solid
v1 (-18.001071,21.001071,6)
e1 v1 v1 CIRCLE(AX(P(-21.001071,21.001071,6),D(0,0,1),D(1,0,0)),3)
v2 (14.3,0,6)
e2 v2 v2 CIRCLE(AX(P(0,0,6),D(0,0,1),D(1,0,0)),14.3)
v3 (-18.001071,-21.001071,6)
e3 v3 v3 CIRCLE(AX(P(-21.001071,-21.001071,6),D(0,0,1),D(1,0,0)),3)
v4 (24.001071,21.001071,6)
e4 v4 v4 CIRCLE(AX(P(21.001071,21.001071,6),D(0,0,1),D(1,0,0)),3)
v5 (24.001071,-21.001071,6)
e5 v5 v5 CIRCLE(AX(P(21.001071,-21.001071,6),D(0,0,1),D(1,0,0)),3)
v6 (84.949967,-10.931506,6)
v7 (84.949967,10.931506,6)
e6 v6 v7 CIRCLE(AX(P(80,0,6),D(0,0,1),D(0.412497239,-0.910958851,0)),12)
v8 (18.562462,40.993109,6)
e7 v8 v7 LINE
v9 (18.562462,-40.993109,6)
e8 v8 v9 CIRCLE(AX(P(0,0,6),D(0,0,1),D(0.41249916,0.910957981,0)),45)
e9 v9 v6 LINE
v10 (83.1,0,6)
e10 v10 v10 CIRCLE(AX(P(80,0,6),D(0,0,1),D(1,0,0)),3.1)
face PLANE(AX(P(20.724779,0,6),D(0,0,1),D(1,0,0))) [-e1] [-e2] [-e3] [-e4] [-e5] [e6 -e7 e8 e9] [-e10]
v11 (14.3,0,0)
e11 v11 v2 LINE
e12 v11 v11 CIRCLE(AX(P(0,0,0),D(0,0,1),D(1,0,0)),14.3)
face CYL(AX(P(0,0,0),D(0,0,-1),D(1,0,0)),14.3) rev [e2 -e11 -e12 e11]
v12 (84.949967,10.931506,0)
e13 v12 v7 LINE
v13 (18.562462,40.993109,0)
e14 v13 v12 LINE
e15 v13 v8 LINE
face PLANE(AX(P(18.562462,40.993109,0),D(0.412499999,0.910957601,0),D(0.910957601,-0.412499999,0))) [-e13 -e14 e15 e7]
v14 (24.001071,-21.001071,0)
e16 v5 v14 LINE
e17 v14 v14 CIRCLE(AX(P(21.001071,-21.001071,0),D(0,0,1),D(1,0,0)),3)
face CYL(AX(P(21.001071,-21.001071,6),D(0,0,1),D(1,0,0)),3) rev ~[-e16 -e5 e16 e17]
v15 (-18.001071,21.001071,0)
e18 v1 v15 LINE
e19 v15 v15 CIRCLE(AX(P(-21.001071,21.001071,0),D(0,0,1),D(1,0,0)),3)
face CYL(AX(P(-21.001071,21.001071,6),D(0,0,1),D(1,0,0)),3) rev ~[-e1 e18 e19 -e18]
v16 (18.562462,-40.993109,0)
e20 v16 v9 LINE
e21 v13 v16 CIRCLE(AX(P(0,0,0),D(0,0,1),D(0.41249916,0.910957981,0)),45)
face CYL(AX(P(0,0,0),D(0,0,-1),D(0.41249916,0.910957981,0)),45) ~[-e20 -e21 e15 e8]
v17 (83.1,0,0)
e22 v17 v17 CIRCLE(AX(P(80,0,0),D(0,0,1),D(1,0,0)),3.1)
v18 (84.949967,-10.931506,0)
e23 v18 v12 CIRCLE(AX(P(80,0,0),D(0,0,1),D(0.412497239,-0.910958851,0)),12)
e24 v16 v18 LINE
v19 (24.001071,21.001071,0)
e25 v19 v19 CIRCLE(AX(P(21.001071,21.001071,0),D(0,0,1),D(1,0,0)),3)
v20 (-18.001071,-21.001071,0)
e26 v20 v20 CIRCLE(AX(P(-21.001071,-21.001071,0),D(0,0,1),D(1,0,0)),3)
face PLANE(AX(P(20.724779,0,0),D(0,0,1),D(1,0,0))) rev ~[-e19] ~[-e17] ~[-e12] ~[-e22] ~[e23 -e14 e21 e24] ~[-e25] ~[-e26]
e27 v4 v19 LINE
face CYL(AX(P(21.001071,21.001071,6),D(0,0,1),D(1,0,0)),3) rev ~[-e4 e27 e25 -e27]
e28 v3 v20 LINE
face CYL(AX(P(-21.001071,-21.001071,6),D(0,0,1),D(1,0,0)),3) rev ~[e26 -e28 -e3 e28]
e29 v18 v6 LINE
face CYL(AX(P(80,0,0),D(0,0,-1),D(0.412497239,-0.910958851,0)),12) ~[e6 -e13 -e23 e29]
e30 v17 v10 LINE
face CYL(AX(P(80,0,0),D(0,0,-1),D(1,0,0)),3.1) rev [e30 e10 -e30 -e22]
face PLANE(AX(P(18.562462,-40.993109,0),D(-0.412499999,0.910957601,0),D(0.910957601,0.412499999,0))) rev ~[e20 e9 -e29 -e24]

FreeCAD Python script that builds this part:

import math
import FreeCAD as App
import Part
import Sketcher
from FreeCAD import Vector
Q = App.Units.Quantity

doc = App.newDocument("Part")
body = doc.addObject("PartDesign::Body", "Body")

sketch1 = doc.addObject("Sketcher::SketchObject", "Sketch")
body.addObject(sketch1)
sketch1.AttachmentSupport = (doc.XY_Plane, [""])
sketch1.MapMode = "FlatFace"
sketch1.addGeometry([
    Part.ArcOfCircle(Part.Circle(Vector(0, 0, 0), Vector(0, 0, 1), 45), math.radians(65.638075), math.radians(294.361925)),
    Part.LineSegment(Vector(18.562462, -40.993109, 0), Vector(84.949967, -10.931506, 0)),
    Part.ArcOfCircle(Part.Circle(Vector(80, 0, 0), Vector(0, 0, 1), 12), math.radians(-65.638196), math.radians(65.638196)),
    Part.LineSegment(Vector(84.949967, 10.931506, 0), Vector(18.562462, 40.993109, 0)),
    Part.Circle(Vector(0, 0, 0), Vector(0, 0, 1), 14.3),
    Part.Circle(Vector(80, 0, 0), Vector(0, 0, 1), 3.1),
], False)
sketch1.addConstraint([
    Sketcher.Constraint("Coincident", 0, 2, 1, 1),
    Sketcher.Constraint("Coincident", 1, 2, 2, 1),
    Sketcher.Constraint("Coincident", 2, 2, 3, 1),
    Sketcher.Constraint("Coincident", 3, 2, 0, 1),
    Sketcher.Constraint("Coincident", 0, 3, -1, 1),
    Sketcher.Constraint("Coincident", 4, 3, -1, 1),
    Sketcher.Constraint("Coincident", 5, 3, 2, 3),
    Sketcher.Constraint("PointOnObject", 2, 3, -1),
    Sketcher.Constraint("Radius", 0, Q("45 mm")),
    Sketcher.Constraint("Radius", 2, Q("12 mm")),
    Sketcher.Constraint("Diameter", 4, Q("28.6 mm")),
    Sketcher.Constraint("Diameter", 5, Q("6.2 mm")),
    Sketcher.Constraint("DistanceX", -1, 1, 2, 3, Q("80 mm")),
    Sketcher.Constraint("DistanceX", -1, 1, 0, 2, Q("18.562462 mm")),
    Sketcher.Constraint("DistanceX", -1, 1, 3, 2, Q("18.562462 mm")),
    Sketcher.Constraint("DistanceY", 1, 2, 2, 2, Q("21.863012 mm")),
    Sketcher.Constraint("Distance", 1, Q("72.876613 mm")),
])
pad1 = doc.addObject("PartDesign::Pad", "Pad")
body.addObject(pad1)
pad1.Profile = sketch1
pad1.Length = 6

sketch2 = doc.addObject("Sketcher::SketchObject", "Sketch001")
body.addObject(sketch2)
sketch2.AttachmentSupport = (doc.XY_Plane, [""])
sketch2.MapMode = "FlatFace"
sketch2.AttachmentOffset = App.Placement(Vector(0, 0, 6), App.Rotation())
sketch2.addGeometry([
    Part.Circle(Vector(-21, 21, 0), Vector(0, 0, 1), 3),
    Part.Circle(Vector(21, 21, 0), Vector(0, 0, 1), 3),
    Part.Circle(Vector(-21, -21, 0), Vector(0, 0, 1), 3),
    Part.Circle(Vector(21, -21, 0), Vector(0, 0, 1), 3),
], False)
sketch2.addConstraint([
    Sketcher.Constraint("Equal", 0, 1),
    Sketcher.Constraint("Equal", 1, 2),
    Sketcher.Constraint("Equal", 2, 3),
    Sketcher.Constraint("Symmetric", 1, 3, 2, 3, -1, 1),
    Sketcher.Constraint("Symmetric", 0, 3, 3, 3, -1, 1),
    Sketcher.Constraint("Symmetric", 0, 3, 1, 3, -2),
    Sketcher.Constraint("Diameter", 0, Q("6 mm")),
    Sketcher.Constraint("DistanceX", 0, 3, -1, 1, Q("21.001071 mm")),
    Sketcher.Constraint("DistanceY", -1, 1, 0, 3, Q("21.001071 mm")),
])
pocket1 = doc.addObject("PartDesign::Pocket", "Pocket")
body.addObject(pocket1)
pocket1.Profile = sketch2
pocket1.Length = 10

doc.recompute()
